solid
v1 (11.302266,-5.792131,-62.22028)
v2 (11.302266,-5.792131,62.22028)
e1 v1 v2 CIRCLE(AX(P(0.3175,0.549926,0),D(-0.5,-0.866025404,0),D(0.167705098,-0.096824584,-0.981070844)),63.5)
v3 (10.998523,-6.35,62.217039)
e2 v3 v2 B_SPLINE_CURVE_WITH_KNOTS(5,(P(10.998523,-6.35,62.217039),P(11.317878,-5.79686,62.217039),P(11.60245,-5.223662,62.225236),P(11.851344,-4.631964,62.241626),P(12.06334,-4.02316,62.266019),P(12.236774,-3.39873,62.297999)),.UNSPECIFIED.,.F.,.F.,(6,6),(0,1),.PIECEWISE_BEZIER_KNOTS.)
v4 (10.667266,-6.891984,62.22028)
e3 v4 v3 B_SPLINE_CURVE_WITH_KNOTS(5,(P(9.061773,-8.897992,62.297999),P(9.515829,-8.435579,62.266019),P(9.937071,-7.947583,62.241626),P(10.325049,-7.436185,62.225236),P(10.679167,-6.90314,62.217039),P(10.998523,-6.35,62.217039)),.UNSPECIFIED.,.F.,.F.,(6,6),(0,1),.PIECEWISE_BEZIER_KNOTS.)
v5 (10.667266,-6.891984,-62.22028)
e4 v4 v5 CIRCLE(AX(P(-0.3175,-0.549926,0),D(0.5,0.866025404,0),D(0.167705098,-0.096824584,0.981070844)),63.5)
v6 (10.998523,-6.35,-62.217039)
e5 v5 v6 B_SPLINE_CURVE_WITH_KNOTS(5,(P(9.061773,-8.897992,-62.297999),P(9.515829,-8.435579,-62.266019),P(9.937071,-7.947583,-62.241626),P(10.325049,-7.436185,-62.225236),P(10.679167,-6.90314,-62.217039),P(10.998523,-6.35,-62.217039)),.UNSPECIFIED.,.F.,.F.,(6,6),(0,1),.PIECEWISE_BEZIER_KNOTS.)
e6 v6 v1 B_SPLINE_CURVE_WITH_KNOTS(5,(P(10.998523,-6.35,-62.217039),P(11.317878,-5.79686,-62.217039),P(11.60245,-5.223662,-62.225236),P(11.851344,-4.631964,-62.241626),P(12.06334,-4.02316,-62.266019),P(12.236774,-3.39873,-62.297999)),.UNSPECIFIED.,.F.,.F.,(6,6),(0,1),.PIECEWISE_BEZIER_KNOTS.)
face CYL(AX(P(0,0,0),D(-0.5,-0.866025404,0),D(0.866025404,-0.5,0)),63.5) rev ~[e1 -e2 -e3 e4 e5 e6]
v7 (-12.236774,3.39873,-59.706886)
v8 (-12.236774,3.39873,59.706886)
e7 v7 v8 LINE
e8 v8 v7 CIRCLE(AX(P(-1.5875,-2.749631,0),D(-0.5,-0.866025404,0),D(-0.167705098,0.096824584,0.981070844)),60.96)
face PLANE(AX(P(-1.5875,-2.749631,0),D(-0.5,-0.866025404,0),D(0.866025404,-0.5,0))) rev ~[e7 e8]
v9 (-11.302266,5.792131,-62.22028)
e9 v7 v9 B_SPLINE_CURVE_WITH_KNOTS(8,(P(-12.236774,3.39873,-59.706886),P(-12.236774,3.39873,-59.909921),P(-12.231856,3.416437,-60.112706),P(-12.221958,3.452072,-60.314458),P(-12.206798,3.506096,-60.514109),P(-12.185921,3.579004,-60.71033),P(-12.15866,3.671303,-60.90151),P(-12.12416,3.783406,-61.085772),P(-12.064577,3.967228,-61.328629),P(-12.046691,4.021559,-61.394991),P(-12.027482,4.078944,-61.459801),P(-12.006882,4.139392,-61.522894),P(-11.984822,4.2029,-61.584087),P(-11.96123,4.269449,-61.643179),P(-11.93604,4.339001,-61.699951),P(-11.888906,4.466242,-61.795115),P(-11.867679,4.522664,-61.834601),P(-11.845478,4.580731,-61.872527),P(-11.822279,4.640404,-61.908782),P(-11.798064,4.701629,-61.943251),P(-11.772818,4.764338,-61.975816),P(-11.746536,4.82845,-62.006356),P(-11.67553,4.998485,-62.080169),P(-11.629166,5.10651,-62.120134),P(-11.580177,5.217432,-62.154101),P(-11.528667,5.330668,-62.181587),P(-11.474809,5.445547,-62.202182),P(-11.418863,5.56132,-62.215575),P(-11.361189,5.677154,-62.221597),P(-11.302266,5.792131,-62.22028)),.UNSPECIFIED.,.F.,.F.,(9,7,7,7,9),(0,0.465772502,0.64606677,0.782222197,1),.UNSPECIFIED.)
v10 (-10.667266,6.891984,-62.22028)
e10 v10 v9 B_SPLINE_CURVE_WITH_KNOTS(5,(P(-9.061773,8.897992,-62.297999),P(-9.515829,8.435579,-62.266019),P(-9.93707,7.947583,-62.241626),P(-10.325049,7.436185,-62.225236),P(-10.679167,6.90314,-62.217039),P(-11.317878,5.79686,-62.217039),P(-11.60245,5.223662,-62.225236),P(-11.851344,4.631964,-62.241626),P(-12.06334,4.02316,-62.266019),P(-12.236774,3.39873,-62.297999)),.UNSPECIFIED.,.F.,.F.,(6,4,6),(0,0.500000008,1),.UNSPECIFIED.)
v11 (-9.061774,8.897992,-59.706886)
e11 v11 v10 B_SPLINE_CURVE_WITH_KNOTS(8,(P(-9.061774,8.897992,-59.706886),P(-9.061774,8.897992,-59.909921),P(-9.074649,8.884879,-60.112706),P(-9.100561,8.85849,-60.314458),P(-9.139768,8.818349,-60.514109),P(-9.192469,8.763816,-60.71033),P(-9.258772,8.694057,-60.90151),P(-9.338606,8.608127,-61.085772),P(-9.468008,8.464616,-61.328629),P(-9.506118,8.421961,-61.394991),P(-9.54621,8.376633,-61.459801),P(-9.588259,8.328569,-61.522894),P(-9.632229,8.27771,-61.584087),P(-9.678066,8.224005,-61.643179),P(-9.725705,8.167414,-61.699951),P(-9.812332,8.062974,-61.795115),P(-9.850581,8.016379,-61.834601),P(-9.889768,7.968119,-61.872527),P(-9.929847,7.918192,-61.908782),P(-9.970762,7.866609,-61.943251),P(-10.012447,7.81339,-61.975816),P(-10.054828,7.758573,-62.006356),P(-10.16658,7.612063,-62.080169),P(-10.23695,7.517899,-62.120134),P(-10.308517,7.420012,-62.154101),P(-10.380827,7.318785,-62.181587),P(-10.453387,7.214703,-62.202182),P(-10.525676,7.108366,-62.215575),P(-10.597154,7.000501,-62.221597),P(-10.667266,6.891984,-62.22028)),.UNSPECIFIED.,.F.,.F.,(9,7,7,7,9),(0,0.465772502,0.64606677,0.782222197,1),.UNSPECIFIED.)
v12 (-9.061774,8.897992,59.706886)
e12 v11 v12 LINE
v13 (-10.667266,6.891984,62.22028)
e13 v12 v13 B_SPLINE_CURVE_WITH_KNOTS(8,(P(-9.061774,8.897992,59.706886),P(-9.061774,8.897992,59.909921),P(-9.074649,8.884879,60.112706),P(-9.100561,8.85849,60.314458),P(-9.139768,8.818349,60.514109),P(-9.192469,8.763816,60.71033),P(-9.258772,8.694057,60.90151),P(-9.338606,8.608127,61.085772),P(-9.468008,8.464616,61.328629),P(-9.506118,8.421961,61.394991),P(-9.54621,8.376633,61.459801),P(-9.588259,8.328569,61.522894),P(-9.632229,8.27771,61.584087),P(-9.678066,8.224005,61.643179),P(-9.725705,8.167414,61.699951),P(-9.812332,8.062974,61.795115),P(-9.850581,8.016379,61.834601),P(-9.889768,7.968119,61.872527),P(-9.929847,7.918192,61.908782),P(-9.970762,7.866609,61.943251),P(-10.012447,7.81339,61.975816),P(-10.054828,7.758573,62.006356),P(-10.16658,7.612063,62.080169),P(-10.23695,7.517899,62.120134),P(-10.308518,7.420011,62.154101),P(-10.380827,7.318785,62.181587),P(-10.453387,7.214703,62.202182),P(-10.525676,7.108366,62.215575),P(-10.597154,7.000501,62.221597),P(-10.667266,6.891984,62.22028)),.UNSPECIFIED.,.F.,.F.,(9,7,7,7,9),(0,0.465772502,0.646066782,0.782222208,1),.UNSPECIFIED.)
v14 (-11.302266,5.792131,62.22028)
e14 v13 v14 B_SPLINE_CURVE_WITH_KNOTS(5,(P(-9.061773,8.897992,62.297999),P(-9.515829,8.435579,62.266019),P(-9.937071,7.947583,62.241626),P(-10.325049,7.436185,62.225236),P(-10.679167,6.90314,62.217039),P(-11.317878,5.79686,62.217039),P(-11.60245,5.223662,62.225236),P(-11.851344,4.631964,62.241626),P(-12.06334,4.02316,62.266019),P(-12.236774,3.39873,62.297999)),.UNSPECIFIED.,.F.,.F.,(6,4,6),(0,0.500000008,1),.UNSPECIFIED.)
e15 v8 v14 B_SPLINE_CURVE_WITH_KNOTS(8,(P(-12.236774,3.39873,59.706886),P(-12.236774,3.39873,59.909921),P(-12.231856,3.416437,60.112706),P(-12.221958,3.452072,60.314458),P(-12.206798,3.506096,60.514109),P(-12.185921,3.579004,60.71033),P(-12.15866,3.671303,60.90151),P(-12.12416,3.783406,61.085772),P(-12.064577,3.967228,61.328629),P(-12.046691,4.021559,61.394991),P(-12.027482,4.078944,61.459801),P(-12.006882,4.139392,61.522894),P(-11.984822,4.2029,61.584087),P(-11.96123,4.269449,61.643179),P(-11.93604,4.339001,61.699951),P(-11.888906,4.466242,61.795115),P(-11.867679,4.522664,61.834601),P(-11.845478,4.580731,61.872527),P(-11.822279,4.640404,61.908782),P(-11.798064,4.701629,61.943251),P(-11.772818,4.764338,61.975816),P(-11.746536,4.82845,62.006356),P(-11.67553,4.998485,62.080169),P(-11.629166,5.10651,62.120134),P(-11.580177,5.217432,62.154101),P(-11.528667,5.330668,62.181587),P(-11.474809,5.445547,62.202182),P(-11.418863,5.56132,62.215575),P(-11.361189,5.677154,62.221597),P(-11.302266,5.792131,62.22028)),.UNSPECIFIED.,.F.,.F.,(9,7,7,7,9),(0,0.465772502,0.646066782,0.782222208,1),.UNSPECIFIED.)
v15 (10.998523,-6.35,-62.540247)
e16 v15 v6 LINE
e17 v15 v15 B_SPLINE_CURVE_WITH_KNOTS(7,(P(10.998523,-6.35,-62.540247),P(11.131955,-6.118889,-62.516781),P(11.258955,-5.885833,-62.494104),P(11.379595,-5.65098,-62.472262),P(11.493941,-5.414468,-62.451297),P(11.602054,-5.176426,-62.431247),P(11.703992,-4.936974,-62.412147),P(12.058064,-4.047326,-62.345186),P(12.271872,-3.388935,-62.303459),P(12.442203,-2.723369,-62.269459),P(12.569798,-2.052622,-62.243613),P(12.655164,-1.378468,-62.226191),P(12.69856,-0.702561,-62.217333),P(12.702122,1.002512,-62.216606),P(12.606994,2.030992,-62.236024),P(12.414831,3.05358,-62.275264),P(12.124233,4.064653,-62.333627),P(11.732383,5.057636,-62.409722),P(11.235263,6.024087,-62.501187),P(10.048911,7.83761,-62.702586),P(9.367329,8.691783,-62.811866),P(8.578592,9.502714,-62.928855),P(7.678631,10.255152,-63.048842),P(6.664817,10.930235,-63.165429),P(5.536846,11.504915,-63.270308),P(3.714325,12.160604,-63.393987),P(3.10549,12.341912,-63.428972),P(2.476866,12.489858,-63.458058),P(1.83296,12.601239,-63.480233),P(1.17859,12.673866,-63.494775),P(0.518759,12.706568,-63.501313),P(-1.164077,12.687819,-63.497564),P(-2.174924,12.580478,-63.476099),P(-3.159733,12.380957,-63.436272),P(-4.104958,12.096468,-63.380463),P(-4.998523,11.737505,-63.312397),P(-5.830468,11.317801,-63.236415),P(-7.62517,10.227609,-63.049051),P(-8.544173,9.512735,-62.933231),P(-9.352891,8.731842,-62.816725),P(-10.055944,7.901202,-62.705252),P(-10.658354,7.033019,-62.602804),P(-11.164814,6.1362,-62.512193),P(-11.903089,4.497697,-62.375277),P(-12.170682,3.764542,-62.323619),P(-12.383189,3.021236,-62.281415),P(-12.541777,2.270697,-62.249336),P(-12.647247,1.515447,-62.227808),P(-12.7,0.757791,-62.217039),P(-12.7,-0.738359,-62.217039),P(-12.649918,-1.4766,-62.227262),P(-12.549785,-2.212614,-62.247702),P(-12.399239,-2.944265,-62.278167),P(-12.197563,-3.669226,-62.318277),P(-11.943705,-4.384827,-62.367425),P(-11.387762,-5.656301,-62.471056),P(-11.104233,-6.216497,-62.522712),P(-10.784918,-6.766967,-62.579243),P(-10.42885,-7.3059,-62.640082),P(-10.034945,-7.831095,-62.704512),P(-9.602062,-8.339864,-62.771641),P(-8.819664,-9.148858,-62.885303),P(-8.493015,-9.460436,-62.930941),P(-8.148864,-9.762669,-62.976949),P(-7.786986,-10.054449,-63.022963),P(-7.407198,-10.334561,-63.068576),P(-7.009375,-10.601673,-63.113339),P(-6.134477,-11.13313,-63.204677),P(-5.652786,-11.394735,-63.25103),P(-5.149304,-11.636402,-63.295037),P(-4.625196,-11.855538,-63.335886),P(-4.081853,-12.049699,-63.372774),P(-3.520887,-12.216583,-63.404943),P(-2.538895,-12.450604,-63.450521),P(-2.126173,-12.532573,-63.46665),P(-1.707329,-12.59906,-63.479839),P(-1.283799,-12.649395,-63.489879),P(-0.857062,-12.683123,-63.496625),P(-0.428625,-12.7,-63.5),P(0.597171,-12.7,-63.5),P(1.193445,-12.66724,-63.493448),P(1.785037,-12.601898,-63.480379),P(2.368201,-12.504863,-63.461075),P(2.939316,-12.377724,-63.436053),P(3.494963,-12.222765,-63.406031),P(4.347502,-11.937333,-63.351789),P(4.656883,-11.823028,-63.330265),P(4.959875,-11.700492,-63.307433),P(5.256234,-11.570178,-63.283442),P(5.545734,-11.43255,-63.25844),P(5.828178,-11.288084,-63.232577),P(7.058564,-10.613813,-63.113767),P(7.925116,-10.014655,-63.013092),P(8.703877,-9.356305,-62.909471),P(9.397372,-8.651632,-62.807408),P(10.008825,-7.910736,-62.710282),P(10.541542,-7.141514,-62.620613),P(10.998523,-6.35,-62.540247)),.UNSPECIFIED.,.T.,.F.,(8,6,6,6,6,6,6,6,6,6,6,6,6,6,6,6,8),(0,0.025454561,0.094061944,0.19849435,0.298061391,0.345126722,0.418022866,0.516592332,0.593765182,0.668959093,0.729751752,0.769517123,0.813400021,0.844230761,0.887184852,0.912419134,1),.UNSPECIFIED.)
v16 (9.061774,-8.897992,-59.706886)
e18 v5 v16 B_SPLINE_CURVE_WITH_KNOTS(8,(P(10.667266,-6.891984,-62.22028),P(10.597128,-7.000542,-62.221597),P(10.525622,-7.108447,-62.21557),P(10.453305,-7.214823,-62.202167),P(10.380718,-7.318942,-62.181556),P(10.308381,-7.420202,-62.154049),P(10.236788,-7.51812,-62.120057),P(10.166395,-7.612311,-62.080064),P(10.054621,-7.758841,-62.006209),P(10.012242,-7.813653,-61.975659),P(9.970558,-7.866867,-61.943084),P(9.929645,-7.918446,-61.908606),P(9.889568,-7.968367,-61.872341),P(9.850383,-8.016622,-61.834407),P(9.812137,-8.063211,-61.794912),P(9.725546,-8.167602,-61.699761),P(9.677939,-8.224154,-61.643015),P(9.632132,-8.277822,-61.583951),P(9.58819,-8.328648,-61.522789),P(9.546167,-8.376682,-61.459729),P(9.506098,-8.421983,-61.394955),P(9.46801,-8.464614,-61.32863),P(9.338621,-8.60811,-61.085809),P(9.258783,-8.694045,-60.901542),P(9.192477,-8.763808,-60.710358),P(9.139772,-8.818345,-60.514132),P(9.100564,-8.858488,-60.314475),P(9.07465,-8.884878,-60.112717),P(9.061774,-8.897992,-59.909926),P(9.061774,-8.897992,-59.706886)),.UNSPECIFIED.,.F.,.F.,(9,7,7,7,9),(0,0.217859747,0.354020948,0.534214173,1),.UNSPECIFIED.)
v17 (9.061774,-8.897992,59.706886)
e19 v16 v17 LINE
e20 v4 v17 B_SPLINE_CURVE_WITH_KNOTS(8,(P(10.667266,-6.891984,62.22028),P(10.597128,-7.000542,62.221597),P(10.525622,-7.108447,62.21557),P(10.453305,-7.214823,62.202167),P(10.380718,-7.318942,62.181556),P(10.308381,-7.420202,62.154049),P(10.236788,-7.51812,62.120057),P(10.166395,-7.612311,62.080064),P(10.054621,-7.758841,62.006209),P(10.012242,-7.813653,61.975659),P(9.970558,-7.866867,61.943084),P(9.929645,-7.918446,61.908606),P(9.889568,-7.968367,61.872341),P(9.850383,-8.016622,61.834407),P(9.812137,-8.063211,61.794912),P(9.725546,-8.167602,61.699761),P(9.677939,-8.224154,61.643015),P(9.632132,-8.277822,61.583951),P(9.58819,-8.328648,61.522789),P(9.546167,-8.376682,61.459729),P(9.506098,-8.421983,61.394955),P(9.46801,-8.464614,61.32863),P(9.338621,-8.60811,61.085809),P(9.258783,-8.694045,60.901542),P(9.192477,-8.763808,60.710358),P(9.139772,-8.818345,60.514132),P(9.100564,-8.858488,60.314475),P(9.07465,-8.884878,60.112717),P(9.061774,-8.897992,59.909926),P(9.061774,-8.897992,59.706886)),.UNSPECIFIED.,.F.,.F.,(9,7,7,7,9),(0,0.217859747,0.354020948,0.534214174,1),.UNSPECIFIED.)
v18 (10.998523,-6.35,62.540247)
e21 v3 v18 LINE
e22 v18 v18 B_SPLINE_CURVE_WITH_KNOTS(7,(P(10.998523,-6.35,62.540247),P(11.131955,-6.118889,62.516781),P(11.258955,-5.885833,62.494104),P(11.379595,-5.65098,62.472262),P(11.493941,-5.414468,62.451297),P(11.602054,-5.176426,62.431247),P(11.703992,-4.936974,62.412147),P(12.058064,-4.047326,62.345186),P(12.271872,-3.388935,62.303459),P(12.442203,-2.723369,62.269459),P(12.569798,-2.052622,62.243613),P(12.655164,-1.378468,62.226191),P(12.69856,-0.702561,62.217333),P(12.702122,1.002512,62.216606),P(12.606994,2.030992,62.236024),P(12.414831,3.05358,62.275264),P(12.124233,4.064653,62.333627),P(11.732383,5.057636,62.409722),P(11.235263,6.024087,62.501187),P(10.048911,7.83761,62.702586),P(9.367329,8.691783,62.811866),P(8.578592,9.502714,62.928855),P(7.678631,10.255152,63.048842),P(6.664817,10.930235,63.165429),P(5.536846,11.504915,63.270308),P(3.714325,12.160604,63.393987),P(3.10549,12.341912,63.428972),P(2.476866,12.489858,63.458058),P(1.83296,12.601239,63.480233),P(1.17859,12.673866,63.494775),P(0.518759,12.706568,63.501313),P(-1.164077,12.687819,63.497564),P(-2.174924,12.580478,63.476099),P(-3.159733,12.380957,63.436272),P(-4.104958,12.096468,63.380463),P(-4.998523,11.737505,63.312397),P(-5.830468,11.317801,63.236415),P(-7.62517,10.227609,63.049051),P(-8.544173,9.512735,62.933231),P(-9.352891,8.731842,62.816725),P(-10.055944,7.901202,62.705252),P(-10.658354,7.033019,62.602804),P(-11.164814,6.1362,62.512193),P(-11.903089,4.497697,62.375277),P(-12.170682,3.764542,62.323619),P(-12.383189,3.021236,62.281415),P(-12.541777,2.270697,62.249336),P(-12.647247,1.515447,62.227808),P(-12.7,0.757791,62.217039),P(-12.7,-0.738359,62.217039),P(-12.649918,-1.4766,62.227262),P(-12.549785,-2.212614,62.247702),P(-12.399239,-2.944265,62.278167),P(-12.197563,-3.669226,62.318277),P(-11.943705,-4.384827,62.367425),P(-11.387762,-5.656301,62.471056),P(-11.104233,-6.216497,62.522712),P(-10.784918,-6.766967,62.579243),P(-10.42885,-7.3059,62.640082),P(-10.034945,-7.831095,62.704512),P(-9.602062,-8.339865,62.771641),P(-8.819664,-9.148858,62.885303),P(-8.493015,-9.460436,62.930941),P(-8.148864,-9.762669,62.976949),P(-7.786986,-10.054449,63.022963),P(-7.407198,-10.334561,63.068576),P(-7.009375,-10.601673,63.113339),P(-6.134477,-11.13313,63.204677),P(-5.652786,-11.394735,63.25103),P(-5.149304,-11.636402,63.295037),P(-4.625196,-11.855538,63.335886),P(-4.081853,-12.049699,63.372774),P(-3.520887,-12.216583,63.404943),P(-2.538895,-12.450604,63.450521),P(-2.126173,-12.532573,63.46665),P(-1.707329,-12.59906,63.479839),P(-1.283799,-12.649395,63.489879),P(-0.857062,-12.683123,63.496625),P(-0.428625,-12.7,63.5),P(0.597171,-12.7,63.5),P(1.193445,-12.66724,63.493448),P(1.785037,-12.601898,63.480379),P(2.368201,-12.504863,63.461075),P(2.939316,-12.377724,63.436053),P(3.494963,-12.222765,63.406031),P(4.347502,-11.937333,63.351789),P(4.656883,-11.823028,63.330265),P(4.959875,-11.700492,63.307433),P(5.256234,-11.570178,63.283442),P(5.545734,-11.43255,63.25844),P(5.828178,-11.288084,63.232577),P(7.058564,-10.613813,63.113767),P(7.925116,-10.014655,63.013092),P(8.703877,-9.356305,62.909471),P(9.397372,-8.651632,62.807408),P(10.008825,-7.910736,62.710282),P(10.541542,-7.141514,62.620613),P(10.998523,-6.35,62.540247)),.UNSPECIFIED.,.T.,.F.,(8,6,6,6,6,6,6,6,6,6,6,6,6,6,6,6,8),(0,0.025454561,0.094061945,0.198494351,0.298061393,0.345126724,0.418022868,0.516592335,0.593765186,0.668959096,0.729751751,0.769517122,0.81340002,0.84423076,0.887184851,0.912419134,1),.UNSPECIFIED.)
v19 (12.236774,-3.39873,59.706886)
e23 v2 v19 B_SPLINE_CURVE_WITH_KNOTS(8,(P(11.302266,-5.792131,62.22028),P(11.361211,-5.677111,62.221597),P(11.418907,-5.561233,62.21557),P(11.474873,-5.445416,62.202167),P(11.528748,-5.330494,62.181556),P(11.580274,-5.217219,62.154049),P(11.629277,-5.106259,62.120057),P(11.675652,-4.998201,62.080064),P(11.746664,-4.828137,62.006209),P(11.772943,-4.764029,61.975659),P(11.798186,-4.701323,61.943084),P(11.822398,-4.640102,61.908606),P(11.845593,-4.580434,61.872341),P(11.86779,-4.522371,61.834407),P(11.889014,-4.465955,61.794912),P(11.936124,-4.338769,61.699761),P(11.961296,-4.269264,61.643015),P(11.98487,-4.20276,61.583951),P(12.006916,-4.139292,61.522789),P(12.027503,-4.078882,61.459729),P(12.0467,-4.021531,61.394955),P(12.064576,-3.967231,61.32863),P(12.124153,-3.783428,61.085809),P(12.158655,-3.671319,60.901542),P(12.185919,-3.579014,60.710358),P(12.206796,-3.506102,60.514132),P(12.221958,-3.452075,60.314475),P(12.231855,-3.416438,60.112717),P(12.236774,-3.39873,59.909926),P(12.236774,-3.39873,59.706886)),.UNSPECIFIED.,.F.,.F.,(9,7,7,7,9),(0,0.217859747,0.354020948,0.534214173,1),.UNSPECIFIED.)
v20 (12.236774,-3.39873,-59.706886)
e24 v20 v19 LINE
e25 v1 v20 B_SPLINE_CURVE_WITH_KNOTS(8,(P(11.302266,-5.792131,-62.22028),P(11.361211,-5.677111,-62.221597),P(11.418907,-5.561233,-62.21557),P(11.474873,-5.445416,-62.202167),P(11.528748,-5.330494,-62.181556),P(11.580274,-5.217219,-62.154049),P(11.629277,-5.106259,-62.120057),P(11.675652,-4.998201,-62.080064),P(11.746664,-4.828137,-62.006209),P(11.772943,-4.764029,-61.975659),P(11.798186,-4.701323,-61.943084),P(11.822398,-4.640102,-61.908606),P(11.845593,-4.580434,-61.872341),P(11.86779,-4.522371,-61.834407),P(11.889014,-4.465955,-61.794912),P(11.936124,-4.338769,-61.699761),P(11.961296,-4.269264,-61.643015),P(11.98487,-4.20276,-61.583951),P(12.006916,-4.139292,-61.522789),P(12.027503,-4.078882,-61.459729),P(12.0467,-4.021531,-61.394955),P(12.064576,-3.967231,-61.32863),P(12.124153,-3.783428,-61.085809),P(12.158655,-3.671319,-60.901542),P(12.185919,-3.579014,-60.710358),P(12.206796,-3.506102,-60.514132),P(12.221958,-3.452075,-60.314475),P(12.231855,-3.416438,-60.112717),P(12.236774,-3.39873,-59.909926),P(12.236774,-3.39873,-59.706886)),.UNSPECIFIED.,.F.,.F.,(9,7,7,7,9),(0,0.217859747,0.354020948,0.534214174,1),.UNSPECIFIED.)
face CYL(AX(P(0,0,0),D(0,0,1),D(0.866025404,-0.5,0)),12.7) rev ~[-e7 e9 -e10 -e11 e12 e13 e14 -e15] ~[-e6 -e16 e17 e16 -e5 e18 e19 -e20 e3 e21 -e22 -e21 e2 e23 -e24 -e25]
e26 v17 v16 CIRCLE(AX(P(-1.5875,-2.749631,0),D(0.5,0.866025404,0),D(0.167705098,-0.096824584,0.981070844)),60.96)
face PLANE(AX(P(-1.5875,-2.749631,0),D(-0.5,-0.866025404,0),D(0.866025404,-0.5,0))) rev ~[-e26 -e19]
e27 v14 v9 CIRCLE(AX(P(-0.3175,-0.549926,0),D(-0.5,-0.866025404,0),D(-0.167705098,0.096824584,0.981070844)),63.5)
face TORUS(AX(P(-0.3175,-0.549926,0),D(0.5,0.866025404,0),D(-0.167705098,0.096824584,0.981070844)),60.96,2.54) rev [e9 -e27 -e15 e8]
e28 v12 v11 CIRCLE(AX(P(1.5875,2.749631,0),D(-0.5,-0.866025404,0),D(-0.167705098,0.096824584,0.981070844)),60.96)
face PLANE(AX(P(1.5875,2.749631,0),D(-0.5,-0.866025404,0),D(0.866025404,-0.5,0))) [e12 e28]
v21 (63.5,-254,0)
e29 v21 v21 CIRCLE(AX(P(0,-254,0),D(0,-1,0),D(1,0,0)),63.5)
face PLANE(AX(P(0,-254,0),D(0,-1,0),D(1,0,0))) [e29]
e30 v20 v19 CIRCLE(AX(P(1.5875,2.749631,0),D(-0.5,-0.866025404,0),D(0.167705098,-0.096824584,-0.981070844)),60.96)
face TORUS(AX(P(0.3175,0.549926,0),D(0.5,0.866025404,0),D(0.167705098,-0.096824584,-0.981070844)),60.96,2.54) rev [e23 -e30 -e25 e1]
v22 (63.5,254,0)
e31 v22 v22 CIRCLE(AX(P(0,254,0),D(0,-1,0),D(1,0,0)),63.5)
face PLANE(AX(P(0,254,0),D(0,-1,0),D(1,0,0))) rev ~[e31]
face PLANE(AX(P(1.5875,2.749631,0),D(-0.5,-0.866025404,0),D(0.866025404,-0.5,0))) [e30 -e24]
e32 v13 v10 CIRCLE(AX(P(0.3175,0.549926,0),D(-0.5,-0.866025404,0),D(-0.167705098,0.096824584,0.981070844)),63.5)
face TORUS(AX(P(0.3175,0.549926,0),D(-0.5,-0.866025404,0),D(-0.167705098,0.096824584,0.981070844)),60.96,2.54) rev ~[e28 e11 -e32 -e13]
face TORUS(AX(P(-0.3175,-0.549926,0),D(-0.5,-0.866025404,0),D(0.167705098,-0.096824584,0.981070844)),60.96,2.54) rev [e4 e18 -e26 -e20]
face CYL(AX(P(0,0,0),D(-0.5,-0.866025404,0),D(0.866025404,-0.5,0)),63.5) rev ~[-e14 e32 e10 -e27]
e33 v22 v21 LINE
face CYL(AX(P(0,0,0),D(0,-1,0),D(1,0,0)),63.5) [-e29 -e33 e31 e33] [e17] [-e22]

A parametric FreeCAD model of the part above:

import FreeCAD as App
import Part
import Sketcher

V = App.Vector
Q = App.Units.Quantity


def edges_at(feature, points):
    """Names of the edges that pass closest to the given points."""
    edges = feature.Shape.Edges
    near = lambda p: min(range(len(edges)), key=lambda i: edges[i].distToShape(Part.Vertex(*p))[0])
    return sorted({f"Edge{near(p) + 1}" for p in points})

doc = App.newDocument("Part")
body = doc.addObject("PartDesign::Body", "Body")

sketch1 = body.newObject("Sketcher::SketchObject", "Sketch")
sketch1.AttachmentSupport = (doc.getObject("XY_Plane"), [""])
sketch1.MapMode = "FlatFace"
sketch1.addGeometry(Part.Circle(V(0, 0, 0), V(0, 0, 1), 13), False)
sketch1.addConstraint([
    Sketcher.Constraint("Coincident", 0, 3, -1, 1),
    Sketcher.Constraint("Diameter", 0, Q("1 in")),
])
pad1 = body.newObject("PartDesign::Pad", "Pad")
pad1.Profile = sketch1
pad1.Length = Q("7.5 in")
pad1.Midplane = True

sketch2 = body.newObject("Sketcher::SketchObject", "Sketch001")
sketch2.AttachmentSupport = (doc.getObject("XZ_Plane"), [""])
sketch2.MapMode = "FlatFace"
sketch2.addGeometry(Part.Circle(V(0, 0, 0), V(0, 0, 1), 64), False)
sketch2.addConstraint([
    Sketcher.Constraint("Coincident", 0, 3, -1, 1),
    Sketcher.Constraint("Diameter", 0, Q("5 in")),
])
pad2 = body.newObject("PartDesign::Pad", "Pad001")
pad2.Profile = sketch2
pad2.Length = Q("0.25 in")
pad2.Midplane = True
doc.recompute()

fillet = body.newObject("PartDesign::Fillet", "Fillet")
fillet.Base = (pad2, edges_at(pad2, [
    (-63.5, -3.175, 0),
    (63.5, -3.175, 0),
    (-63.5, 3.175, 0),
    (63.5, 3.175, 0),
]))
fillet.Radius = Q("0.1 in")
body2 = doc.addObject("PartDesign::Body", "Body001")
doc.recompute()

body.Placement = App.Placement(V(0, 0, 0), App.Rotation(V(0, 0, -1), 30))
boolean = body2.newObject("PartDesign::Boolean", "Boolean")
boolean.Type = "Fuse"
boolean.addObjects([body])
body3 = doc.addObject("PartDesign::Body", "Body002")

sketch3 = body3.newObject("Sketcher::SketchObject", "Sketch002")
sketch3.AttachmentSupport = (doc.getObject("XZ_Plane002"), [""])
sketch3.MapMode = "FlatFace"
sketch3.addGeometry(Part.Circle(V(0, 0, 0), V(0, 0, 1), 64), False)
sketch3.addConstraint([
    Sketcher.Constraint("Coincident", 0, 3, -1, 1),
    Sketcher.Constraint("Diameter", 0, Q("5 in")),
])
pad3 = body3.newObject("PartDesign::Pad", "Pad002")
pad3.Profile = sketch3
pad3.Length = Q("20 in")
pad3.Midplane = True
doc.recompute()

boolean2 = body3.newObject("PartDesign::Boolean", "Boolean001")
boolean2.Type = "Cut"
boolean2.addObjects([body2])

doc.recompute()
